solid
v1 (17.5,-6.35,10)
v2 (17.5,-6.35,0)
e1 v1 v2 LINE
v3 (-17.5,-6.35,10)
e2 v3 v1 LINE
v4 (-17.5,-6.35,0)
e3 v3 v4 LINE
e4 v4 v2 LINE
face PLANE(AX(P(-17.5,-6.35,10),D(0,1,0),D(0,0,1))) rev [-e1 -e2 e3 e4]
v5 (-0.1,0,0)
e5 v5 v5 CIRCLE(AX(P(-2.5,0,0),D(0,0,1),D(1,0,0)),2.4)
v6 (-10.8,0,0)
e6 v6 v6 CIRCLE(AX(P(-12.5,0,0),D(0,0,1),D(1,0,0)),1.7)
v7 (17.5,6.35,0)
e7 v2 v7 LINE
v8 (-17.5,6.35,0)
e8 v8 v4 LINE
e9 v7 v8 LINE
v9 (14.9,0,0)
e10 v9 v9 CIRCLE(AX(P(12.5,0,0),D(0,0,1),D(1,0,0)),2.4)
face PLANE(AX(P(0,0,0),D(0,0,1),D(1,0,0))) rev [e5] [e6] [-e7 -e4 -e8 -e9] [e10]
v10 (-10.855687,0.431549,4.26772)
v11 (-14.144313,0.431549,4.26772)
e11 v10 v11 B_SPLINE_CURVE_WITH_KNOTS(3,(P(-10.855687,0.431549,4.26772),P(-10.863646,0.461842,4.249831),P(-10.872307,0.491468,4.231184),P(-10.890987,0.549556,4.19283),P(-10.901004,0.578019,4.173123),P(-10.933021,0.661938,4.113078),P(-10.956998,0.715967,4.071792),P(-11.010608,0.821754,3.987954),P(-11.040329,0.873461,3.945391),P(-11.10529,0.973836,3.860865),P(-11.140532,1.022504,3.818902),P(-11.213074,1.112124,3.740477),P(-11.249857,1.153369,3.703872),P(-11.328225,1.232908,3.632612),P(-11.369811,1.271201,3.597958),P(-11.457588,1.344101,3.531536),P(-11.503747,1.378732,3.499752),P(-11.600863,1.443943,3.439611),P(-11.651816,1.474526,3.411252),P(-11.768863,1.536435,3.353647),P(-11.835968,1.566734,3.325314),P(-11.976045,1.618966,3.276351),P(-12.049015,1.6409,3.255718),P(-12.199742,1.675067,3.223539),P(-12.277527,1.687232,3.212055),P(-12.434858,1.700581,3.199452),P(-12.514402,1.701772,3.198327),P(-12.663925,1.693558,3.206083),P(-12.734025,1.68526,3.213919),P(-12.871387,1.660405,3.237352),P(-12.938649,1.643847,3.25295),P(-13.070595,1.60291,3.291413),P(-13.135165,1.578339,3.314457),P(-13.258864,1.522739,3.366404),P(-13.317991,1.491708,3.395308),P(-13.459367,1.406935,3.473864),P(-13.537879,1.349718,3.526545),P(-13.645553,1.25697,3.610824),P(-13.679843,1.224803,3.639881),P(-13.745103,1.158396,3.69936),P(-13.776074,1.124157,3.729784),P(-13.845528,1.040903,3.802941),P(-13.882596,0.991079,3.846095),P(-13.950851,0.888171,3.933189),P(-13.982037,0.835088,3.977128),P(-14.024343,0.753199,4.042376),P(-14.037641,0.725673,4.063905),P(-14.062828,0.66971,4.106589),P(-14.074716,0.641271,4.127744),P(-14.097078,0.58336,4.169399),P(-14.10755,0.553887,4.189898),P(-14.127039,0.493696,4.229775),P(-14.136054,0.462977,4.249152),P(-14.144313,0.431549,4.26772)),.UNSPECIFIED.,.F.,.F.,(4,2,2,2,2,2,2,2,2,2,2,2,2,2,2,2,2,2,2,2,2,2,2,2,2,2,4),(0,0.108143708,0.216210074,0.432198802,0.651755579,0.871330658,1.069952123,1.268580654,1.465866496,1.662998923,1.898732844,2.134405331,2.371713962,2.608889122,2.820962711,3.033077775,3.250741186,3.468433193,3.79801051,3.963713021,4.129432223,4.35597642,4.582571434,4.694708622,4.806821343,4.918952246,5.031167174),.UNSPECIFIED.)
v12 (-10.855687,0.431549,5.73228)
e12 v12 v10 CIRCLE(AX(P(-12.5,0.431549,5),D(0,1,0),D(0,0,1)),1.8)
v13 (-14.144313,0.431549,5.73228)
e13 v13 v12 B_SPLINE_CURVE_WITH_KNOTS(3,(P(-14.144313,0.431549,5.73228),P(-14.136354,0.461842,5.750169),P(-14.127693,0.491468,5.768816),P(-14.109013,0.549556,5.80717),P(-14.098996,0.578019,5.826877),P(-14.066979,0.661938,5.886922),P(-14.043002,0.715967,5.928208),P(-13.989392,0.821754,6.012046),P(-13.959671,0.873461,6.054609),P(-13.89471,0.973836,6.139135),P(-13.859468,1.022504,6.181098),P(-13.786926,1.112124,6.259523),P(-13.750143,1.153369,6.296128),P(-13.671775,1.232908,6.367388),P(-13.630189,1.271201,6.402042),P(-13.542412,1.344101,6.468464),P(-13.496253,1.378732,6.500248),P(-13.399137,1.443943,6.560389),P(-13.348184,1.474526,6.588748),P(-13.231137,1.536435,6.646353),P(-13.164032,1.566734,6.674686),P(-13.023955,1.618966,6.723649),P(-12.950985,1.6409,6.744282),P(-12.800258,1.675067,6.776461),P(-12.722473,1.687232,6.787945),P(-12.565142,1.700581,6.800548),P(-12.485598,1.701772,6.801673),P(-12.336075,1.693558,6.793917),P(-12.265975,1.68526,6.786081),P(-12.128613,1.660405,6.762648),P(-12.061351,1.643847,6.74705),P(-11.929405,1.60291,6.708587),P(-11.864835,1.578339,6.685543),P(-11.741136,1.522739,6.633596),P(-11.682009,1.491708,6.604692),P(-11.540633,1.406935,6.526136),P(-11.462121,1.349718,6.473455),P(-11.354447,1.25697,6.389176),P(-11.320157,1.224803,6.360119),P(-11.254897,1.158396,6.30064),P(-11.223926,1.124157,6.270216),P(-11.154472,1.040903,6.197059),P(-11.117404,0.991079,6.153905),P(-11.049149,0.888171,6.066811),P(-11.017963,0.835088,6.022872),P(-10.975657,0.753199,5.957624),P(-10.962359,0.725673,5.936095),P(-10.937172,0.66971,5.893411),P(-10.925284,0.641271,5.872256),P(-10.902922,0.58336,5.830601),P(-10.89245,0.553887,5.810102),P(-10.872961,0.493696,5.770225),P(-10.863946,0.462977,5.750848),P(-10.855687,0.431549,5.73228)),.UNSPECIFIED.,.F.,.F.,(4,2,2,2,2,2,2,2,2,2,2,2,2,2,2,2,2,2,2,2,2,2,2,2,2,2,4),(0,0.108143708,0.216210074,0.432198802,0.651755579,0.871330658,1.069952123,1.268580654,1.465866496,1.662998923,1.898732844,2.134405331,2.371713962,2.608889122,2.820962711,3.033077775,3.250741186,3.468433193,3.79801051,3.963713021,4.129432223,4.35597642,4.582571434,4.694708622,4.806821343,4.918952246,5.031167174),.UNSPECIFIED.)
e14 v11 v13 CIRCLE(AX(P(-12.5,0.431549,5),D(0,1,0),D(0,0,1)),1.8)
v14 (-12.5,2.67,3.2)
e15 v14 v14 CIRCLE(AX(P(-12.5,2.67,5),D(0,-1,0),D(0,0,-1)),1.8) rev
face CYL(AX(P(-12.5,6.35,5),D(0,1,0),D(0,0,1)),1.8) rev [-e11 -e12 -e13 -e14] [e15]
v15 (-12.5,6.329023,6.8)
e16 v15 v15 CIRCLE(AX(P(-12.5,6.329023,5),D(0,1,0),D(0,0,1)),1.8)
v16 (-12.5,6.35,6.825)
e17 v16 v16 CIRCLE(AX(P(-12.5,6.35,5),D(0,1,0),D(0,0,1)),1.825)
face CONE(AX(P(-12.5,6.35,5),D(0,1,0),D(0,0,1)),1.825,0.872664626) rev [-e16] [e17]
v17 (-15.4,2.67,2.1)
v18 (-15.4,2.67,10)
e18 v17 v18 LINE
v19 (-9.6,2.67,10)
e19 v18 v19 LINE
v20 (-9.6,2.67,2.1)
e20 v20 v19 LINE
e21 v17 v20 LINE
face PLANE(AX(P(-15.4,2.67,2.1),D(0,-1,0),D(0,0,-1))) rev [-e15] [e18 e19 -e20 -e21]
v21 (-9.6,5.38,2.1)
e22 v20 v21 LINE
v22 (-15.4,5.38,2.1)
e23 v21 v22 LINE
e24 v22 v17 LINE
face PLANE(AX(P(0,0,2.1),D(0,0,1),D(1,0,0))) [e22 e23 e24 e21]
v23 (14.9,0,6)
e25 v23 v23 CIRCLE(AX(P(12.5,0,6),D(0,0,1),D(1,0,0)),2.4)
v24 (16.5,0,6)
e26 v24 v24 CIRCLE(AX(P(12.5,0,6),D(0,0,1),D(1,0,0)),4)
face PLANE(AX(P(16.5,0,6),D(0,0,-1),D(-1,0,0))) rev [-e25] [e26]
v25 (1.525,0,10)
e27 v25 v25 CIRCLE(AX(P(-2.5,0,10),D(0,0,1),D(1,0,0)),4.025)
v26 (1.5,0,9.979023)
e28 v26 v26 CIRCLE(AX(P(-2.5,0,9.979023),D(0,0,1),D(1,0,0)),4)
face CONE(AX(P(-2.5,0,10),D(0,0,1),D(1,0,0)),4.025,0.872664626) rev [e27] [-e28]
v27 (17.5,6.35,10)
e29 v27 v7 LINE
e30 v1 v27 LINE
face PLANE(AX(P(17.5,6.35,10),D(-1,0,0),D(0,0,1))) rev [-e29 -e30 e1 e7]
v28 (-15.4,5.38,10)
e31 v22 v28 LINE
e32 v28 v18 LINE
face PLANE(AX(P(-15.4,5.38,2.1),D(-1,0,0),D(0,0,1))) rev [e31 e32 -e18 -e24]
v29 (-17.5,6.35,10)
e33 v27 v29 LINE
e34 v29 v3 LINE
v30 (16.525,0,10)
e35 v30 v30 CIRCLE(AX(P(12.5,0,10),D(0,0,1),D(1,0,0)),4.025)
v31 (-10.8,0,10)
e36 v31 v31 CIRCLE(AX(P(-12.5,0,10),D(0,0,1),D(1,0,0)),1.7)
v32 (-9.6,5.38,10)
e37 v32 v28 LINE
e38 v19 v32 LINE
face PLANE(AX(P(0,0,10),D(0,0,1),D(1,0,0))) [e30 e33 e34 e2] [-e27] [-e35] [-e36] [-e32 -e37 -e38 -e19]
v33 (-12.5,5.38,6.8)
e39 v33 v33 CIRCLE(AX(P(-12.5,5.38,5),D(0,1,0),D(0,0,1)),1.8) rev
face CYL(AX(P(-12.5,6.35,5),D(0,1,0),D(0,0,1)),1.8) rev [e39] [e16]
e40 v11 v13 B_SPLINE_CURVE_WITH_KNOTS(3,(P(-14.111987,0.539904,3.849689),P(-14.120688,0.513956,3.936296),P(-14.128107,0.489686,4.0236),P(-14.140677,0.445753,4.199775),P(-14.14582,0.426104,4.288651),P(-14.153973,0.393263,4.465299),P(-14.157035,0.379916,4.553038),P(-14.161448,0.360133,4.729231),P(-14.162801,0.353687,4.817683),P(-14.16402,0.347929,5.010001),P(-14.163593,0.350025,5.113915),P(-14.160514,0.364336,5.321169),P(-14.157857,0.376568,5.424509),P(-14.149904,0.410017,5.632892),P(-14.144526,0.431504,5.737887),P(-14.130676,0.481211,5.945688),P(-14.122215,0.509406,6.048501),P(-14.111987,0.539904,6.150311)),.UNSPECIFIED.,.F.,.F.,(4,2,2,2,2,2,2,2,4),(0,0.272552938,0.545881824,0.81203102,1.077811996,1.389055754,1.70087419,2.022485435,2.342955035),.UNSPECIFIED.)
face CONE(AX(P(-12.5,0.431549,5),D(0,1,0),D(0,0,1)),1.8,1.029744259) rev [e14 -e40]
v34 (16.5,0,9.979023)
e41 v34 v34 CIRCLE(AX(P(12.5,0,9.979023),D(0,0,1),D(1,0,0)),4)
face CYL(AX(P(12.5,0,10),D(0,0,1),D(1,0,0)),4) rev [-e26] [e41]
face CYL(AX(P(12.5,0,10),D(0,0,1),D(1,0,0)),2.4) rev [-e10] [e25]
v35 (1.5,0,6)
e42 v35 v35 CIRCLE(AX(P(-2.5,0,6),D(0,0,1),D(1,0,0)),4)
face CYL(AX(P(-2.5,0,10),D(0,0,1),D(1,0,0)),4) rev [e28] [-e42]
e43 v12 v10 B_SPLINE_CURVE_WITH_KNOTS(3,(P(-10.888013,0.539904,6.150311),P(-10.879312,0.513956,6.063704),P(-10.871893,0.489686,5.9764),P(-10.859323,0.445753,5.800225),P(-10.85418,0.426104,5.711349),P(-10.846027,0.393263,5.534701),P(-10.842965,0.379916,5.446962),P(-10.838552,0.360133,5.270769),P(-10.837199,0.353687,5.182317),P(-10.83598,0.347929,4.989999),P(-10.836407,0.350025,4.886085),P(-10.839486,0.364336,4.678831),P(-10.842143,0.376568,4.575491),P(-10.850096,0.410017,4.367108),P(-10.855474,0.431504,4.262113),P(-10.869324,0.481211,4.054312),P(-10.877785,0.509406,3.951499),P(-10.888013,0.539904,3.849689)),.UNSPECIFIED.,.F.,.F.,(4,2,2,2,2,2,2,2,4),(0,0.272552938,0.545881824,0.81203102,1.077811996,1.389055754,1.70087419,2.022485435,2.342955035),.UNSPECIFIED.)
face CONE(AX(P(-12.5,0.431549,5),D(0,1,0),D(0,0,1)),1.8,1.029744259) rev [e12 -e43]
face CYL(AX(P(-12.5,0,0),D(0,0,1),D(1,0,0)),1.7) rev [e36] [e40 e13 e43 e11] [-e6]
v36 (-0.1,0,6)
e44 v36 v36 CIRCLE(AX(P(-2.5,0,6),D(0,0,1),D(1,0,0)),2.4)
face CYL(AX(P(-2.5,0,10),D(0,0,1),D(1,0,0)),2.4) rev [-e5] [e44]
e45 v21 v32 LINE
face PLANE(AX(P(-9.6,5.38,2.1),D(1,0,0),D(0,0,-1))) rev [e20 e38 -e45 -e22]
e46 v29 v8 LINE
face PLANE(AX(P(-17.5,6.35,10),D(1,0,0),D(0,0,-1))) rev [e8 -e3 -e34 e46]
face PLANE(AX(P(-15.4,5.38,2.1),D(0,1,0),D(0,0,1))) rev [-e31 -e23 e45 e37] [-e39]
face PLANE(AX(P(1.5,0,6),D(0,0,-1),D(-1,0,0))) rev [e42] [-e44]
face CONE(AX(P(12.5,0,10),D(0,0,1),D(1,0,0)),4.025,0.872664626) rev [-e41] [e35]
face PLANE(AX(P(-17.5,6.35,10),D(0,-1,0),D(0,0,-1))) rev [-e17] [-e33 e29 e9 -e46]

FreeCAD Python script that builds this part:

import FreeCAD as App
import Part
import Sketcher
Q = App.Units.Quantity

doc = App.newDocument("Part")
body = doc.addObject("PartDesign::Body", "Body")

sketch1 = body.newObject("Sketcher::SketchObject", "Sketch")
sketch1.AttachmentSupport = (doc.getObject("XY_Plane"), [""])
sketch1.MapMode = "FlatFace"
sketch1.addGeometry([
    Part.LineSegment(App.Vector(-18, 6, 0), App.Vector(-18, -6, 0)),
    Part.LineSegment(App.Vector(-18, -6, 0), App.Vector(18, -6, 0)),
    Part.LineSegment(App.Vector(18, -6, 0), App.Vector(18, 6, 0)),
    Part.LineSegment(App.Vector(18, 6, 0), App.Vector(-18, 6, 0)),
], False)
sketch1.addConstraint([
    Sketcher.Constraint("Coincident", 0, 2, 1, 1),
    Sketcher.Constraint("Coincident", 1, 2, 2, 1),
    Sketcher.Constraint("Coincident", 2, 2, 3, 1),
    Sketcher.Constraint("Coincident", 3, 2, 0, 1),
    Sketcher.Constraint("Vertical", 0),
    Sketcher.Constraint("Horizontal", 1),
    Sketcher.Constraint("Vertical", 2),
    Sketcher.Constraint("Horizontal", 3),
    Sketcher.Constraint("Symmetric", 0, 2, 2, 2, -1, 1),
    Sketcher.Constraint("DistanceX", 1, 1, 1, 2, Q("35 mm")),
    Sketcher.Constraint("DistanceY", 0, 2, 0, 1, Q("12.7 mm")),
])
pad1 = body.newObject("PartDesign::Pad", "Pad")
pad1.Profile = sketch1
pad1.Length = 10

sketch2 = body.newObject("Sketcher::SketchObject", "Sketch001")
sketch2.AttachmentSupport = (doc.getObject("YZ_Plane"), [""])
sketch2.MapMode = "FlatFace"
sketch2.AttachmentOffset = App.Placement(App.Vector(0, 0, 12.5), App.Rotation())
sketch2.addGeometry([
    Part.LineSegment(App.Vector(0, 0, 0), App.Vector(0, 10, 0)),
    Part.LineSegment(App.Vector(0, 10, 0), App.Vector(-4.025, 10, 0)),
    Part.LineSegment(App.Vector(-4.025, 10, 0), App.Vector(-4, 9.979, 0)),
    Part.LineSegment(App.Vector(-4, 9.979, 0), App.Vector(-4, 6, 0)),
    Part.LineSegment(App.Vector(-4, 6, 0), App.Vector(-2.4, 6, 0)),
    Part.LineSegment(App.Vector(-2.4, 6, 0), App.Vector(-2.4, 0, 0)),
    Part.LineSegment(App.Vector(-2.4, 0, 0), App.Vector(0, 0, 0)),
], False)
sketch2.addConstraint([
    Sketcher.Constraint("Coincident", 0, 2, 1, 1),
    Sketcher.Constraint("Coincident", 1, 2, 2, 1),
    Sketcher.Constraint("Coincident", 2, 2, 3, 1),
    Sketcher.Constraint("Coincident", 3, 2, 4, 1),
    Sketcher.Constraint("Coincident", 4, 2, 5, 1),
    Sketcher.Constraint("Coincident", 5, 2, 6, 1),
    Sketcher.Constraint("Coincident", 6, 2, 0, 1),
    Sketcher.Constraint("Vertical", 0),
    Sketcher.Constraint("Horizontal", 1),
    Sketcher.Constraint("Vertical", 3),
    Sketcher.Constraint("Horizontal", 4),
    Sketcher.Constraint("Vertical", 5),
    Sketcher.Constraint("Horizontal", 6),
    Sketcher.Constraint("Coincident", 6, 2, -1, 1),
    Sketcher.Constraint("DistanceY", 0, 1, 0, 2, Q("10 mm")),
    Sketcher.Constraint("DistanceY", 5, 2, 5, 1, Q("6 mm")),
    Sketcher.Constraint("Angle", 2, Q("-40 deg")),
    Sketcher.Constraint("DistanceX", 4, 1, 4, 2, Q("1.6 mm")),
    Sketcher.Constraint("DistanceX", 6, 1, 6, 2, Q("2.4 mm")),
    Sketcher.Constraint("DistanceX", 1, 2, 1, 1, Q("4.025 mm")),
])
groove = body.newObject("PartDesign::Groove", "Groove")
groove.Profile = sketch2
groove.ReferenceAxis = (sketch2, ["V_Axis"])
groove.Angle = 360
doc.recompute()

linearpattern = body.newObject("PartDesign::LinearPattern", "LinearPattern")
linearpattern.Originals = [groove]
linearpattern.Direction = (doc.getObject("X_Axis"), [""])
linearpattern.Mode = "offset"
linearpattern.Offset = 15
linearpattern.Occurrences = 2
linearpattern.Reversed = True
body.Tip = linearpattern

sketch3 = body.newObject("Sketcher::SketchObject", "Sketch002")
sketch3.AttachmentSupport = (doc.getObject("XY_Plane"), [""])
sketch3.MapMode = "FlatFace"
sketch3.AttachmentOffset = App.Placement(App.Vector(0, 0, 10), App.Rotation())
sketch3.addGeometry(Part.Circle(App.Vector(-12.5, 0, 0), App.Vector(0, 0, 1), 1.7), False)
sketch3.addConstraint([
    Sketcher.Constraint("PointOnObject", 0, 3, -1),
    Sketcher.Constraint("Diameter", 0, Q("3.4 mm")),
    Sketcher.Constraint("DistanceX", 0, 3, -1, 1, Q("12.5 mm")),
])
pocket1 = body.newObject("PartDesign::Pocket", "Pocket")
pocket1.Profile = sketch3
pocket1.Length = 10

sketch4 = body.newObject("Sketcher::SketchObject", "Sketch003")
sketch4.AttachmentSupport = (doc.getObject("XZ_Plane"), [""])
sketch4.MapMode = "FlatFace"
sketch4.AttachmentOffset = App.Placement(App.Vector(0, 0, -6.35), App.Rotation())
sketch4.addGeometry(Part.Circle(App.Vector(-12.5, 5, 0), App.Vector(0, 0, 1), 1.8), False)
sketch4.addConstraint([
    Sketcher.Constraint("Diameter", 0, Q("3.6 mm")),
    Sketcher.Constraint("DistanceY", -1, 1, 0, 3, Q("5 mm")),
    Sketcher.Constraint("DistanceX", 0, 3, -1, 1, Q("12.5 mm")),
])
doc.recompute()
hole = body.newObject("PartDesign::Hole", "Hole")
hole.Profile = sketch4
hole.ThreadType = "None"
hole.Diameter = 3.6
hole.DepthType = "Dimension"
hole.Depth = 5.918451
hole.DrillPoint = "Angled"
hole.DrillPointAngle = 118
hole.HoleCutType = "Countersink"
hole.HoleCutDiameter = 3.65
hole.HoleCutCountersinkAngle = 100
hole.Reversed = True

sketch5 = body.newObject("Sketcher::SketchObject", "Sketch004")
sketch5.AttachmentSupport = (doc.getObject("XY_Plane"), [""])
sketch5.MapMode = "FlatFace"
sketch5.AttachmentOffset = App.Placement(App.Vector(0, 0, 10), App.Rotation())
sketch5.addGeometry([
    Part.LineSegment(App.Vector(-15.4, 5.4, 0), App.Vector(-15.4, 2.7, 0)),
    Part.LineSegment(App.Vector(-15.4, 2.7, 0), App.Vector(-9.6, 2.7, 0)),
    Part.LineSegment(App.Vector(-9.6, 2.7, 0), App.Vector(-9.6, 5.4, 0)),
    Part.LineSegment(App.Vector(-9.6, 5.4, 0), App.Vector(-15.4, 5.4, 0)),
], False)
sketch5.addConstraint([
    Sketcher.Constraint("Coincident", 0, 2, 1, 1),
    Sketcher.Constraint("Coincident", 1, 2, 2, 1),
    Sketcher.Constraint("Coincident", 2, 2, 3, 1),
    Sketcher.Constraint("Coincident", 3, 2, 0, 1),
    Sketcher.Constraint("Vertical", 0),
    Sketcher.Constraint("Horizontal", 1),
    Sketcher.Constraint("Vertical", 2),
    Sketcher.Constraint("Horizontal", 3),
    Sketcher.Constraint("DistanceX", 1, 1, 1, 2, Q("5.8 mm")),
    Sketcher.Constraint("DistanceY", 0, 2, 0, 1, Q("2.71 mm")),
    Sketcher.Constraint("DistanceX", 0, 2, -1, 1, Q("15.4 mm")),
    Sketcher.Constraint("DistanceY", -1, 1, 0, 2, Q("2.67 mm")),
])
pocket2 = body.newObject("PartDesign::Pocket", "Pocket001")
pocket2.Profile = sketch5
pocket2.Length = 7.9

doc.recompute()
